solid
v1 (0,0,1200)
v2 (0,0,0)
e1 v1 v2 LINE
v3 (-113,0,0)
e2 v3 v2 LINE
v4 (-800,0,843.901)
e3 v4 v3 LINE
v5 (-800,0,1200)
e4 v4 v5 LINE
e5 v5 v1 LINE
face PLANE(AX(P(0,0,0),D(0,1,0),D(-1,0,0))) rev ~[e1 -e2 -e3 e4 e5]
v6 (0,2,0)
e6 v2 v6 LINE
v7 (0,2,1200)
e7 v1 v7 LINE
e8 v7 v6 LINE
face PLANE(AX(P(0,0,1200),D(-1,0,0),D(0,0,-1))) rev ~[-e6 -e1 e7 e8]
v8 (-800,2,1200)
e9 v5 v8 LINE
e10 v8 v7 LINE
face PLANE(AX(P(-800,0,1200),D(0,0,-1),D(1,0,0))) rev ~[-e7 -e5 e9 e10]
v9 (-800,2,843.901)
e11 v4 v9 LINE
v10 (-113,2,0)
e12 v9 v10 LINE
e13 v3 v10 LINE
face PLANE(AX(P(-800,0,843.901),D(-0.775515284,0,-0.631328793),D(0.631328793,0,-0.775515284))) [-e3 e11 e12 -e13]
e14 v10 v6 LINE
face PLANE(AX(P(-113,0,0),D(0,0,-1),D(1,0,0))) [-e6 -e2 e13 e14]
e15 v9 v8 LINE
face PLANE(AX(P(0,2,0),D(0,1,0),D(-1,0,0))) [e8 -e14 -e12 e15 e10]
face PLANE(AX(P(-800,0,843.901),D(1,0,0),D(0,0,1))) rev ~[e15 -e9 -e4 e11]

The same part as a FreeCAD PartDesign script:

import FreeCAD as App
import Part
import Sketcher
from FreeCAD import Vector
Q = App.Units.Quantity


def add_polygon(sketch, points):
    """Adds a closed chain of lines whose ends are joined by coincident constraints."""
    first, n = sketch.GeometryCount, len(points)
    for a, b in zip(points, points[1:] + points[:1]):
        sketch.addGeometry(Part.LineSegment(App.Vector(*a, 0), App.Vector(*b, 0)), False)
    for i in range(n):
        sketch.addConstraint(Sketcher.Constraint("Coincident", first + i, 2, first + (i + 1) % n, 1))

doc = App.newDocument("Part")
body = doc.addObject("PartDesign::Body", "Body")

# Sketch on XZ plane
sketch1 = doc.addObject("Sketcher::SketchObject", "Sketch")
body.addObject(sketch1)
sketch1.AttachmentSupport = (doc.XZ_Plane, [""])
sketch1.MapMode = "FlatFace"
add_polygon(sketch1, [(-800, 1200), (0, 1200), (0, 0), (-113, 0), (-800, 843.901)])  # lines 0-4
sketch1.addConstraint(Sketcher.Constraint("Horizontal", 0))
sketch1.addConstraint(Sketcher.Constraint("Vertical", 1))
sketch1.addConstraint(Sketcher.Constraint("Horizontal", 2))
sketch1.addConstraint(Sketcher.Constraint("Vertical", 4))
sketch1.addConstraint(Sketcher.Constraint("Coincident", 1, 2, -1, 1))
sketch1.addConstraint(Sketcher.Constraint("DistanceX", 0, 1, 0, 2, Q("800 mm")))
sketch1.addConstraint(Sketcher.Constraint("DistanceX", 2, 2, 2, 1, Q("113 mm")))
sketch1.addConstraint(Sketcher.Constraint("DistanceY", 1, 2, 1, 1, Q("1200 mm")))
sketch1.addConstraint(Sketcher.Constraint("DistanceY", 4, 1, 4, 2, Q("356.099 mm")))
pad1 = doc.addObject("PartDesign::Pad", "Pad")
body.addObject(pad1)
pad1.Profile = sketch1
pad1.Length = 2
pad1.Reversed = True

doc.recompute()
